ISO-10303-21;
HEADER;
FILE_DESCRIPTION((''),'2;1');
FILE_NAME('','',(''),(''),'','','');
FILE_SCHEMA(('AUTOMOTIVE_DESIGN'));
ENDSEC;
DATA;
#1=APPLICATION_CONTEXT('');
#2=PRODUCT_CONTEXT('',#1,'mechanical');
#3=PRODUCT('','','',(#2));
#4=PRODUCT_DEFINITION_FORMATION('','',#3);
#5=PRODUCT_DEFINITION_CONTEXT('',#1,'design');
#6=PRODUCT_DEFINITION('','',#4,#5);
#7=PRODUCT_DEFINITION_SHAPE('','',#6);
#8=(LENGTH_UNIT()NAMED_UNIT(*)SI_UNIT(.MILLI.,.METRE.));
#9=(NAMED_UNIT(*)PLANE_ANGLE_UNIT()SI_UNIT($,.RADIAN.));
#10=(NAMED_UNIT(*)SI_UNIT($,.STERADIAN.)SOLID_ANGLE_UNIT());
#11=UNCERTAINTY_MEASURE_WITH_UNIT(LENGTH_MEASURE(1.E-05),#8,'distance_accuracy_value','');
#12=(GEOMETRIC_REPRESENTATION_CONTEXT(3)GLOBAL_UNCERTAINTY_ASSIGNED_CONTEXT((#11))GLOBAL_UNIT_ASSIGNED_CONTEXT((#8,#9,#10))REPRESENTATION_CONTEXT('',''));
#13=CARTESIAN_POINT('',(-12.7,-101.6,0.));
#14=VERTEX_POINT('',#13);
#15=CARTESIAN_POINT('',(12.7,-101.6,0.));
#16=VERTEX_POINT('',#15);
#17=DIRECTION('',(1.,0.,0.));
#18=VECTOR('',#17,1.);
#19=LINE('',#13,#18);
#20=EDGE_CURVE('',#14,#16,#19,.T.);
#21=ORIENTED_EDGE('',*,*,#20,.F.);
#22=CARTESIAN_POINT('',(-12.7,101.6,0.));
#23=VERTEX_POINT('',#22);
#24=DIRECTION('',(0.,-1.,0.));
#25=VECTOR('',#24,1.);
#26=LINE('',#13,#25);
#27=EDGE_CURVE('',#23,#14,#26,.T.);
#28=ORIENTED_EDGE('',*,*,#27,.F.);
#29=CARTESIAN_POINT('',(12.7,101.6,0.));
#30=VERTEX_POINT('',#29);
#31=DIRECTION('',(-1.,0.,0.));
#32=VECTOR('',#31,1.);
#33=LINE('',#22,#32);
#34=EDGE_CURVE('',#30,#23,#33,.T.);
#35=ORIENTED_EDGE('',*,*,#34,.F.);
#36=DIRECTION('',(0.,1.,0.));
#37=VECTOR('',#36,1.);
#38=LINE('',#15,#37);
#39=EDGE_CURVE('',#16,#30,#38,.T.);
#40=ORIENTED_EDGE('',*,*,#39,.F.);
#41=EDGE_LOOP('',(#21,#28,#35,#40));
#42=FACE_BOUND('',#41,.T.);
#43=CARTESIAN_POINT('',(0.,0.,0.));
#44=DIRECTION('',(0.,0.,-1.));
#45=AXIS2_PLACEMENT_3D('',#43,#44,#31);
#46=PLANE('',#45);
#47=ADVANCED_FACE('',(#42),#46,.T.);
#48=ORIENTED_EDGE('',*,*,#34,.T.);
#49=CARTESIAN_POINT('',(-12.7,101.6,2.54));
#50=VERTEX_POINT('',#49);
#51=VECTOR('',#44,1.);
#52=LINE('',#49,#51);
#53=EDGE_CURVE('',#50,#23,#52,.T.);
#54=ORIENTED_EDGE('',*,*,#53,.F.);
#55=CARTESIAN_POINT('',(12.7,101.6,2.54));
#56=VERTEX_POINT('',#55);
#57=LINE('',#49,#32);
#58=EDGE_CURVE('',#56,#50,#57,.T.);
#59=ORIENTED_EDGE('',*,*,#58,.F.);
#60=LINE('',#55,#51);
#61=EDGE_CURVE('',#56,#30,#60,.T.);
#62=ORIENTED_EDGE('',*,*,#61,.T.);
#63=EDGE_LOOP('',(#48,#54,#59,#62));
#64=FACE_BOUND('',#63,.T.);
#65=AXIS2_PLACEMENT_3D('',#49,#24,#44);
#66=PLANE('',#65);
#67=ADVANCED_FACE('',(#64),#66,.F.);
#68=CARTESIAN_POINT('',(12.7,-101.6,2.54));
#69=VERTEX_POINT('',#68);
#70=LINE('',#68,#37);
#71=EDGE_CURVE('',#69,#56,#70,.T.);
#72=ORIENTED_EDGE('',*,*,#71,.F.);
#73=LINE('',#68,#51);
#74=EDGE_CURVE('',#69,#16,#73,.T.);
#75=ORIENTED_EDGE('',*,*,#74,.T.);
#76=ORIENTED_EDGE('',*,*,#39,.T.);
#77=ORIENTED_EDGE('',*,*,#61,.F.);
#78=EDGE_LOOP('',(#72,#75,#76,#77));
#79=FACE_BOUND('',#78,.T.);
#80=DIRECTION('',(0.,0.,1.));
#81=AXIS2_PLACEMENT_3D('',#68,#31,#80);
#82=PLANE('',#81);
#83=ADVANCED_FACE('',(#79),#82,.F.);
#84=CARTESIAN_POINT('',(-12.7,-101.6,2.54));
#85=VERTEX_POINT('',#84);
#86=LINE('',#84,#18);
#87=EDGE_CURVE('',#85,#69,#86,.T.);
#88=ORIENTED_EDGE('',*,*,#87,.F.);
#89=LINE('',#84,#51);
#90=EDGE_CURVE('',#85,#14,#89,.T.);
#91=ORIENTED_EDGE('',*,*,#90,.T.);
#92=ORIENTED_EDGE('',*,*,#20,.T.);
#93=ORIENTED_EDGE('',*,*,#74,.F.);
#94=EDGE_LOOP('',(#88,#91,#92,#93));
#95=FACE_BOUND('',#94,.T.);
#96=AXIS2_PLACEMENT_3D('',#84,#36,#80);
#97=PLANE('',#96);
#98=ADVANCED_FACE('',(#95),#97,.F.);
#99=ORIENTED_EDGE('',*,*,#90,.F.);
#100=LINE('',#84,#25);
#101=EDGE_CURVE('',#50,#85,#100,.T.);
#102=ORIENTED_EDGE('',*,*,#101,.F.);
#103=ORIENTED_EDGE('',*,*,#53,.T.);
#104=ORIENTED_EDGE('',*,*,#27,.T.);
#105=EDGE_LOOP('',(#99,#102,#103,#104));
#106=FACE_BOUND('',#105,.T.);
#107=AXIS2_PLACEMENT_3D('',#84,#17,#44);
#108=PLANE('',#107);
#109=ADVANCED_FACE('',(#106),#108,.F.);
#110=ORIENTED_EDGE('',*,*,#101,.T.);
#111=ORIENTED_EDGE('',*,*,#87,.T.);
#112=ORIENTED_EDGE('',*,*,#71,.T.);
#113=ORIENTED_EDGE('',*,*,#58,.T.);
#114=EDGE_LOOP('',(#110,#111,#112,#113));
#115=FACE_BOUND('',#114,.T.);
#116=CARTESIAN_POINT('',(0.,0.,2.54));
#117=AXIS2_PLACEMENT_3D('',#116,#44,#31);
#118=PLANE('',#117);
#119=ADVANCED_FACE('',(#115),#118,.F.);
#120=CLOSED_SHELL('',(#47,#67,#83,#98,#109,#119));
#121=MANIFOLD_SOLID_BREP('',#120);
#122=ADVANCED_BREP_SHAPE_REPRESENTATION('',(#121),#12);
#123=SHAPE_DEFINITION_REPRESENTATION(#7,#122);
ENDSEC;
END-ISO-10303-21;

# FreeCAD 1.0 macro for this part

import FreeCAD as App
import Part
import Sketcher
Q = App.Units.Quantity

doc = App.newDocument("Part")
body = doc.addObject("PartDesign::Body", "Body")

# Sketch on XY plane
sketch1 = body.newObject("Sketcher::SketchObject", "Sketch")
sketch1.AttachmentSupport = (doc.getObject("XY_Plane"), [""])
sketch1.MapMode = "FlatFace"
sketch1.addGeometry(Part.LineSegment(App.Vector(-12.7, 101.6, 0), App.Vector(-12.7, -101.6, 0)), False)
sketch1.addGeometry(Part.LineSegment(App.Vector(-12.7, -101.6, 0), App.Vector(12.7, -101.6, 0)), False)
sketch1.addGeometry(Part.LineSegment(App.Vector(12.7, -101.6, 0), App.Vector(12.7, 101.6, 0)), False)
sketch1.addGeometry(Part.LineSegment(App.Vector(12.7, 101.6, 0), App.Vector(-12.7, 101.6, 0)), False)
sketch1.addConstraint(Sketcher.Constraint("Coincident", 0, 2, 1, 1))
sketch1.addConstraint(Sketcher.Constraint("Coincident", 1, 2, 2, 1))
sketch1.addConstraint(Sketcher.Constraint("Coincident", 2, 2, 3, 1))
sketch1.addConstraint(Sketcher.Constraint("Coincident", 3, 2, 0, 1))
sketch1.addConstraint(Sketcher.Constraint("Vertical", 0))
sketch1.addConstraint(Sketcher.Constraint("Horizontal", 1))
sketch1.addConstraint(Sketcher.Constraint("Vertical", 2))
sketch1.addConstraint(Sketcher.Constraint("Horizontal", 3))
sketch1.addConstraint(Sketcher.Constraint("Symmetric", 0, 2, 2, 2, -1, 1))
sketch1.addConstraint(Sketcher.Constraint("DistanceX", 1, 1, 1, 2, Q("1 in")))
sketch1.addConstraint(Sketcher.Constraint("DistanceY", 0, 2, 0, 1, Q("8 in")))
pad1 = body.newObject("PartDesign::Pad", "Pad")
pad1.Profile = sketch1
pad1.Length = Q("0.1 in")

doc.recompute()
